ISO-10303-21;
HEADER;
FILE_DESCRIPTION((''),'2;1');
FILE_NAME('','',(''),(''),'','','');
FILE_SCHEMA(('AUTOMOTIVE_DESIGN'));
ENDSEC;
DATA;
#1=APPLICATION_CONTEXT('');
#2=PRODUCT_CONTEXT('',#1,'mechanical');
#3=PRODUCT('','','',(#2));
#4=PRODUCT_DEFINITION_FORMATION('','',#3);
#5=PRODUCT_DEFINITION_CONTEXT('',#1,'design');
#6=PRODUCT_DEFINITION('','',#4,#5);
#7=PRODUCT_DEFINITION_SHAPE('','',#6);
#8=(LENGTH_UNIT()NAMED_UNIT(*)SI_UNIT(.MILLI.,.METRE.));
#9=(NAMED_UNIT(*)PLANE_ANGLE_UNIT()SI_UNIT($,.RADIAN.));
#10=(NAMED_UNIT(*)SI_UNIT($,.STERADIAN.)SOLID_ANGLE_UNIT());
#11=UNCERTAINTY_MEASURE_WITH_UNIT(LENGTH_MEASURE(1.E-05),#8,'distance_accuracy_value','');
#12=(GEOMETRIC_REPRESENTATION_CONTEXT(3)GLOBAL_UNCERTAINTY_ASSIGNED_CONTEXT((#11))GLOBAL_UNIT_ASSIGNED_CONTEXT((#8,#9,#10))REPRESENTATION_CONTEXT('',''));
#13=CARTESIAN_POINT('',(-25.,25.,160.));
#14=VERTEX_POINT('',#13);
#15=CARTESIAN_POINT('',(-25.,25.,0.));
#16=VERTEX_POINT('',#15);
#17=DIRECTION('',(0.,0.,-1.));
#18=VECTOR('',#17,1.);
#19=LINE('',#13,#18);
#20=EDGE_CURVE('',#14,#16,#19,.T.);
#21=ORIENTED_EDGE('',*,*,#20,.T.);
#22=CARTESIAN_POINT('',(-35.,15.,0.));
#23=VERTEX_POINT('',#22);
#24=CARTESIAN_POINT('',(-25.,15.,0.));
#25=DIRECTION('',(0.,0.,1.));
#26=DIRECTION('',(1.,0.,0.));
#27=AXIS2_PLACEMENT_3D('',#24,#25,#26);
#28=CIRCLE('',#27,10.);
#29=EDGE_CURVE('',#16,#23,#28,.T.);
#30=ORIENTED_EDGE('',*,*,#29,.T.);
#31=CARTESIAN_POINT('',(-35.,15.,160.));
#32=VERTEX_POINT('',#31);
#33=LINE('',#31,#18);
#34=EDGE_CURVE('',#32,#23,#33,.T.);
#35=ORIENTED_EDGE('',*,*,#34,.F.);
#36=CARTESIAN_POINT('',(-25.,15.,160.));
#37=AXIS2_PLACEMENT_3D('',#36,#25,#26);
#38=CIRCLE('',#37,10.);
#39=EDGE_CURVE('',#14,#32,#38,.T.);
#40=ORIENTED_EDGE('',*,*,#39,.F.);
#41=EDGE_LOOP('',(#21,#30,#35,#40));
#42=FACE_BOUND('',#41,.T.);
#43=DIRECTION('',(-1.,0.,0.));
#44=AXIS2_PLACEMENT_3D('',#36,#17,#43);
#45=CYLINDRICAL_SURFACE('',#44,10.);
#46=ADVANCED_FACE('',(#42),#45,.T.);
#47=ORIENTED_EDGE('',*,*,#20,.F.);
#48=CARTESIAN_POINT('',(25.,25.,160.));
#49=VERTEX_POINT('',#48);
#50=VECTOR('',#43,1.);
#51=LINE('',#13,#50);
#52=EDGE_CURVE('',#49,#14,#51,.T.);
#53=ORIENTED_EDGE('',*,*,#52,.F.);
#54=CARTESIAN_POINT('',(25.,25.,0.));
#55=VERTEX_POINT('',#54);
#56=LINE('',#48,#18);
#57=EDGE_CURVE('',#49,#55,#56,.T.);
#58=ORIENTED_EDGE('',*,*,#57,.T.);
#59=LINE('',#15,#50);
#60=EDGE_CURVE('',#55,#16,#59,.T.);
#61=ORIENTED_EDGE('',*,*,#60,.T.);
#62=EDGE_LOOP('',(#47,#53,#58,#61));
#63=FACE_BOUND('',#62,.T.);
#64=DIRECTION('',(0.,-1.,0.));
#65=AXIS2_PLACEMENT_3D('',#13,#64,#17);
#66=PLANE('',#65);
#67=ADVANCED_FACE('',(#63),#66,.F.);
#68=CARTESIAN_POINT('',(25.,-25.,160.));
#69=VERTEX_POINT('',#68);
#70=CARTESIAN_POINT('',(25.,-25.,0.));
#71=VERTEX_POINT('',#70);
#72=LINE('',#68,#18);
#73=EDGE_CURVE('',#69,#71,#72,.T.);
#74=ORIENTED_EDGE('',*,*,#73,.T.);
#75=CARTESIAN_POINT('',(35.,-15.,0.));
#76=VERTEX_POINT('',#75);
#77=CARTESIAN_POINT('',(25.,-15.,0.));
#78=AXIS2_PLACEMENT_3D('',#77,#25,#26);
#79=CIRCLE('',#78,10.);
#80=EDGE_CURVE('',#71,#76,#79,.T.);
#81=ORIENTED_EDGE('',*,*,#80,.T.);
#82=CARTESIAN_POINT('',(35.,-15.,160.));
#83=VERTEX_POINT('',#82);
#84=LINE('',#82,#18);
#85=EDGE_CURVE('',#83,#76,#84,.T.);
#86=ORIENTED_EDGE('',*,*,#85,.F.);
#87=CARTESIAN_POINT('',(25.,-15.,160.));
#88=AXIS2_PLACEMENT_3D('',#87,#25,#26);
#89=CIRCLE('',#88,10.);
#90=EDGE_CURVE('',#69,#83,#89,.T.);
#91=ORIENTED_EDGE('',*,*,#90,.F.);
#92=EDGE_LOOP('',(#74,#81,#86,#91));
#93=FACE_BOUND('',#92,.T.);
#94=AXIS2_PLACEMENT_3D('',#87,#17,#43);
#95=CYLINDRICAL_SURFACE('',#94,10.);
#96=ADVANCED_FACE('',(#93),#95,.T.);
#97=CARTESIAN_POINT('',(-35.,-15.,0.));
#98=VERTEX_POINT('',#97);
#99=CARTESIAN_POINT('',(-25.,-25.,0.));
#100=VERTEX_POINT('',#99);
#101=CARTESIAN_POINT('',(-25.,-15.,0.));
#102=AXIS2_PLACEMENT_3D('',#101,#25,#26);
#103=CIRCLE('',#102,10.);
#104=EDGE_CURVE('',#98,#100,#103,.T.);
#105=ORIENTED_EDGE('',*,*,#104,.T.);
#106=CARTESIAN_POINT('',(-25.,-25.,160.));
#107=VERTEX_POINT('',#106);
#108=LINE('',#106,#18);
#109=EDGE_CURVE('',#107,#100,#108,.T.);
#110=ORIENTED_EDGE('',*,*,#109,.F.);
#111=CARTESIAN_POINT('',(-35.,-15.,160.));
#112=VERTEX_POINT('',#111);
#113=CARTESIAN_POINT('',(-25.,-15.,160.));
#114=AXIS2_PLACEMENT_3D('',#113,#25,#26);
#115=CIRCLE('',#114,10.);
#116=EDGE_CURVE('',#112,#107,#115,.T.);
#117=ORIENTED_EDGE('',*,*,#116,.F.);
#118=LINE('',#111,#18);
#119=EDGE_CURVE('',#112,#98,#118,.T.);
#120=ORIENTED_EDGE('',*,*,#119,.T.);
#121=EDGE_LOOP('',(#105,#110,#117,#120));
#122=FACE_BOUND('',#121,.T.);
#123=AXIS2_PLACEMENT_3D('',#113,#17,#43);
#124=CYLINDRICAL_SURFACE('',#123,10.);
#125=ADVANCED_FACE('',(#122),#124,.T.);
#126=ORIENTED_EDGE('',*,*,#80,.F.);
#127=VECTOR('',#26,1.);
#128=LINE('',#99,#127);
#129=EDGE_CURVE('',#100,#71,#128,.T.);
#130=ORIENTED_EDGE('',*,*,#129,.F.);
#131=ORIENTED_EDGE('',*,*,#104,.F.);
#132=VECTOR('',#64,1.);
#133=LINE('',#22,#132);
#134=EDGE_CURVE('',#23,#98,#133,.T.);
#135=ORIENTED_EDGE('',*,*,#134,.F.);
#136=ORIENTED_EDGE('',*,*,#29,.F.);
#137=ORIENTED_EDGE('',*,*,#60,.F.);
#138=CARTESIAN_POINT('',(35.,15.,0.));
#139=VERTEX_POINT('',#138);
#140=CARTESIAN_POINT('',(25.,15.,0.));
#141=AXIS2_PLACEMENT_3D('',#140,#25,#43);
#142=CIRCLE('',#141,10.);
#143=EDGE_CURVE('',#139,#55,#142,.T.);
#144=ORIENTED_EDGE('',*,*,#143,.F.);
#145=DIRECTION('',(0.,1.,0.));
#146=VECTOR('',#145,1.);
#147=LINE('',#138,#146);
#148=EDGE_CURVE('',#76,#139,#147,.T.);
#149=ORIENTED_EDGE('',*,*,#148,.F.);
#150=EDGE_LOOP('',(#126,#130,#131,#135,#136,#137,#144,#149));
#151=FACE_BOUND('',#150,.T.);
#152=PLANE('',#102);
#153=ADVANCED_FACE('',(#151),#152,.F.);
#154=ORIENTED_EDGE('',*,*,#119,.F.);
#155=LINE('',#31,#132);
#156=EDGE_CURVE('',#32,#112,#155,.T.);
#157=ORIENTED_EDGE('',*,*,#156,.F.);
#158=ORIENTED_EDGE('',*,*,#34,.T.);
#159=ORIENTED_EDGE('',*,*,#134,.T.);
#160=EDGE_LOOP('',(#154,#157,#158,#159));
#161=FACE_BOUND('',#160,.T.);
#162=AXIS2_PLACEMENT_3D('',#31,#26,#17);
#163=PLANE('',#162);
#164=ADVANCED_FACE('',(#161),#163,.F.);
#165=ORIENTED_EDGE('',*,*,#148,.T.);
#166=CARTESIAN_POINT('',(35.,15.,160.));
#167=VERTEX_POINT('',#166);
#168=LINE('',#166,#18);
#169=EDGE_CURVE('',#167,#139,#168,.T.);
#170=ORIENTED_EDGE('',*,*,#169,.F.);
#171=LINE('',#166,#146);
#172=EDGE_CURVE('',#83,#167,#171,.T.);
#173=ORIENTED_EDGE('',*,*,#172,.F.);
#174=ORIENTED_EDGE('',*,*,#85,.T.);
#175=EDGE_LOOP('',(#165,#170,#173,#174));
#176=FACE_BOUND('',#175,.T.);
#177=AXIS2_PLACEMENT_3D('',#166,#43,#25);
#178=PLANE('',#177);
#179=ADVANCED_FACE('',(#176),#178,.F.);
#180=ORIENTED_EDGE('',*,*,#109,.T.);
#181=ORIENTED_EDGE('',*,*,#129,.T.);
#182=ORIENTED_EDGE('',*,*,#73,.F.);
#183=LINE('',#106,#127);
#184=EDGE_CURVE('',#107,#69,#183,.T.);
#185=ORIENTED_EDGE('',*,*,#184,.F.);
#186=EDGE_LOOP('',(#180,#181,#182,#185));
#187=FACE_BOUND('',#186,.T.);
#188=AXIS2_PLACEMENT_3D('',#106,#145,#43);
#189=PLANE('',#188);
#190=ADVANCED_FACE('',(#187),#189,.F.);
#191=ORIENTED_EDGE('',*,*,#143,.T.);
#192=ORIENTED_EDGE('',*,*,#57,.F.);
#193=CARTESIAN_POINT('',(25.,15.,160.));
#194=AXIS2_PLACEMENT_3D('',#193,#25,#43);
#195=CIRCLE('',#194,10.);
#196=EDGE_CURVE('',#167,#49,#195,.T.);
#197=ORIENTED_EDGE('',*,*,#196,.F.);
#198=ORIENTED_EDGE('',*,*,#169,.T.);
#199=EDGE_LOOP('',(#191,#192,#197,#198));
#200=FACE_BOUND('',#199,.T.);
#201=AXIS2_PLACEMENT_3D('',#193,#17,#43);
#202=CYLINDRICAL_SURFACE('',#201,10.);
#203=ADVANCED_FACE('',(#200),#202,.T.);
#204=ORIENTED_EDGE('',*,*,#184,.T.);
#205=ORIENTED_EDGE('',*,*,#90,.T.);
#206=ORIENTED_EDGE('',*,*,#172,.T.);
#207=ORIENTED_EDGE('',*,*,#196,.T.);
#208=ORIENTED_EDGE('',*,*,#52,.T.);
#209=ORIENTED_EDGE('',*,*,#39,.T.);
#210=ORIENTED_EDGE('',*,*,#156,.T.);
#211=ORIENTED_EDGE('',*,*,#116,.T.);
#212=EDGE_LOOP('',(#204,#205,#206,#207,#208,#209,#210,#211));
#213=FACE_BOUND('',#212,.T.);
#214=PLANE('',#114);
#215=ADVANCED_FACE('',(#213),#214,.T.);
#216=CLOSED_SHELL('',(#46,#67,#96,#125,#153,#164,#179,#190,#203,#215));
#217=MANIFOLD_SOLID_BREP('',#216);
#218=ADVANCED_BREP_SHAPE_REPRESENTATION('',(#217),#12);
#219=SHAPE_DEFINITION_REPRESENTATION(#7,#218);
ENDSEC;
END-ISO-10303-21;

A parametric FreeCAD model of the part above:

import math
import FreeCAD as App
import Part
import Sketcher

doc = App.newDocument("Part")
body = doc.addObject("PartDesign::Body", "Body")

# Sketch on XY plane
sketch1 = body.newObject("Sketcher::SketchObject", "Sketch")
sketch1.AttachmentSupport = (doc.getObject("XY_Plane"), [""])
sketch1.MapMode = "FlatFace"
sketch1.addGeometry(Part.LineSegment(App.Vector(25, 25, 0), App.Vector(-25, 25, 0)), False)
sketch1.addGeometry(Part.ArcOfCircle(Part.Circle(App.Vector(-25, 15, 0), App.Vector(0, 0, 1), 10), math.radians(90), math.radians(180)), False)
sketch1.addGeometry(Part.LineSegment(App.Vector(-35, 15, 0), App.Vector(-35, -15, 0)), False)
sketch1.addGeometry(Part.ArcOfCircle(Part.Circle(App.Vector(-25, -15, 0), App.Vector(0, 0, 1), 10), math.radians(180), math.radians(270)), False)
sketch1.addGeometry(Part.LineSegment(App.Vector(-25, -25, 0), App.Vector(25, -25, 0)), False)
sketch1.addGeometry(Part.ArcOfCircle(Part.Circle(App.Vector(25, -15, 0), App.Vector(0, 0, 1), 10), math.radians(-90), math.radians(0)), False)
sketch1.addGeometry(Part.LineSegment(App.Vector(35, -15, 0), App.Vector(35, 15, 0)), False)
sketch1.addGeometry(Part.ArcOfCircle(Part.Circle(App.Vector(25, 15, 0), App.Vector(0, 0, 1), 10), math.radians(0), math.radians(90)), False)
sketch1.addConstraint(Sketcher.Constraint("Tangent", 0, 2, 1, 1))
sketch1.addConstraint(Sketcher.Constraint("Tangent", 1, 2, 2, 1))
sketch1.addConstraint(Sketcher.Constraint("Tangent", 2, 2, 3, 1))
sketch1.addConstraint(Sketcher.Constraint("Tangent", 3, 2, 4, 1))
sketch1.addConstraint(Sketcher.Constraint("Tangent", 4, 2, 5, 1))
sketch1.addConstraint(Sketcher.Constraint("Tangent", 5, 2, 6, 1))
sketch1.addConstraint(Sketcher.Constraint("Tangent", 6, 2, 7, 1))
sketch1.addConstraint(Sketcher.Constraint("Tangent", 7, 2, 0, 1))
sketch1.addConstraint(Sketcher.Constraint("Horizontal", 0))
sketch1.addConstraint(Sketcher.Constraint("Vertical", 2))
sketch1.addConstraint(Sketcher.Constraint("Horizontal", 4))
sketch1.addConstraint(Sketcher.Constraint("Vertical", 6))
sketch1.addConstraint(Sketcher.Constraint("Equal", 1, 3))
sketch1.addConstraint(Sketcher.Constraint("Equal", 3, 5))
sketch1.addConstraint(Sketcher.Constraint("Equal", 5, 7))
sketch1.addConstraint(Sketcher.Constraint("Symmetric", 1, 3, 5, 3, -1, 1))
sketch1.addConstraint(Sketcher.Constraint("Radius", 1, 10.0))
sketch1.addConstraint(Sketcher.Constraint("DistanceX", 0, 2, 0, 1, 50.0))
sketch1.addConstraint(Sketcher.Constraint("DistanceY", 2, 2, 2, 1, 30.0))
pad1 = body.newObject("PartDesign::Pad", "Pad")
pad1.Profile = sketch1
pad1.Length = 160

doc.recompute()
